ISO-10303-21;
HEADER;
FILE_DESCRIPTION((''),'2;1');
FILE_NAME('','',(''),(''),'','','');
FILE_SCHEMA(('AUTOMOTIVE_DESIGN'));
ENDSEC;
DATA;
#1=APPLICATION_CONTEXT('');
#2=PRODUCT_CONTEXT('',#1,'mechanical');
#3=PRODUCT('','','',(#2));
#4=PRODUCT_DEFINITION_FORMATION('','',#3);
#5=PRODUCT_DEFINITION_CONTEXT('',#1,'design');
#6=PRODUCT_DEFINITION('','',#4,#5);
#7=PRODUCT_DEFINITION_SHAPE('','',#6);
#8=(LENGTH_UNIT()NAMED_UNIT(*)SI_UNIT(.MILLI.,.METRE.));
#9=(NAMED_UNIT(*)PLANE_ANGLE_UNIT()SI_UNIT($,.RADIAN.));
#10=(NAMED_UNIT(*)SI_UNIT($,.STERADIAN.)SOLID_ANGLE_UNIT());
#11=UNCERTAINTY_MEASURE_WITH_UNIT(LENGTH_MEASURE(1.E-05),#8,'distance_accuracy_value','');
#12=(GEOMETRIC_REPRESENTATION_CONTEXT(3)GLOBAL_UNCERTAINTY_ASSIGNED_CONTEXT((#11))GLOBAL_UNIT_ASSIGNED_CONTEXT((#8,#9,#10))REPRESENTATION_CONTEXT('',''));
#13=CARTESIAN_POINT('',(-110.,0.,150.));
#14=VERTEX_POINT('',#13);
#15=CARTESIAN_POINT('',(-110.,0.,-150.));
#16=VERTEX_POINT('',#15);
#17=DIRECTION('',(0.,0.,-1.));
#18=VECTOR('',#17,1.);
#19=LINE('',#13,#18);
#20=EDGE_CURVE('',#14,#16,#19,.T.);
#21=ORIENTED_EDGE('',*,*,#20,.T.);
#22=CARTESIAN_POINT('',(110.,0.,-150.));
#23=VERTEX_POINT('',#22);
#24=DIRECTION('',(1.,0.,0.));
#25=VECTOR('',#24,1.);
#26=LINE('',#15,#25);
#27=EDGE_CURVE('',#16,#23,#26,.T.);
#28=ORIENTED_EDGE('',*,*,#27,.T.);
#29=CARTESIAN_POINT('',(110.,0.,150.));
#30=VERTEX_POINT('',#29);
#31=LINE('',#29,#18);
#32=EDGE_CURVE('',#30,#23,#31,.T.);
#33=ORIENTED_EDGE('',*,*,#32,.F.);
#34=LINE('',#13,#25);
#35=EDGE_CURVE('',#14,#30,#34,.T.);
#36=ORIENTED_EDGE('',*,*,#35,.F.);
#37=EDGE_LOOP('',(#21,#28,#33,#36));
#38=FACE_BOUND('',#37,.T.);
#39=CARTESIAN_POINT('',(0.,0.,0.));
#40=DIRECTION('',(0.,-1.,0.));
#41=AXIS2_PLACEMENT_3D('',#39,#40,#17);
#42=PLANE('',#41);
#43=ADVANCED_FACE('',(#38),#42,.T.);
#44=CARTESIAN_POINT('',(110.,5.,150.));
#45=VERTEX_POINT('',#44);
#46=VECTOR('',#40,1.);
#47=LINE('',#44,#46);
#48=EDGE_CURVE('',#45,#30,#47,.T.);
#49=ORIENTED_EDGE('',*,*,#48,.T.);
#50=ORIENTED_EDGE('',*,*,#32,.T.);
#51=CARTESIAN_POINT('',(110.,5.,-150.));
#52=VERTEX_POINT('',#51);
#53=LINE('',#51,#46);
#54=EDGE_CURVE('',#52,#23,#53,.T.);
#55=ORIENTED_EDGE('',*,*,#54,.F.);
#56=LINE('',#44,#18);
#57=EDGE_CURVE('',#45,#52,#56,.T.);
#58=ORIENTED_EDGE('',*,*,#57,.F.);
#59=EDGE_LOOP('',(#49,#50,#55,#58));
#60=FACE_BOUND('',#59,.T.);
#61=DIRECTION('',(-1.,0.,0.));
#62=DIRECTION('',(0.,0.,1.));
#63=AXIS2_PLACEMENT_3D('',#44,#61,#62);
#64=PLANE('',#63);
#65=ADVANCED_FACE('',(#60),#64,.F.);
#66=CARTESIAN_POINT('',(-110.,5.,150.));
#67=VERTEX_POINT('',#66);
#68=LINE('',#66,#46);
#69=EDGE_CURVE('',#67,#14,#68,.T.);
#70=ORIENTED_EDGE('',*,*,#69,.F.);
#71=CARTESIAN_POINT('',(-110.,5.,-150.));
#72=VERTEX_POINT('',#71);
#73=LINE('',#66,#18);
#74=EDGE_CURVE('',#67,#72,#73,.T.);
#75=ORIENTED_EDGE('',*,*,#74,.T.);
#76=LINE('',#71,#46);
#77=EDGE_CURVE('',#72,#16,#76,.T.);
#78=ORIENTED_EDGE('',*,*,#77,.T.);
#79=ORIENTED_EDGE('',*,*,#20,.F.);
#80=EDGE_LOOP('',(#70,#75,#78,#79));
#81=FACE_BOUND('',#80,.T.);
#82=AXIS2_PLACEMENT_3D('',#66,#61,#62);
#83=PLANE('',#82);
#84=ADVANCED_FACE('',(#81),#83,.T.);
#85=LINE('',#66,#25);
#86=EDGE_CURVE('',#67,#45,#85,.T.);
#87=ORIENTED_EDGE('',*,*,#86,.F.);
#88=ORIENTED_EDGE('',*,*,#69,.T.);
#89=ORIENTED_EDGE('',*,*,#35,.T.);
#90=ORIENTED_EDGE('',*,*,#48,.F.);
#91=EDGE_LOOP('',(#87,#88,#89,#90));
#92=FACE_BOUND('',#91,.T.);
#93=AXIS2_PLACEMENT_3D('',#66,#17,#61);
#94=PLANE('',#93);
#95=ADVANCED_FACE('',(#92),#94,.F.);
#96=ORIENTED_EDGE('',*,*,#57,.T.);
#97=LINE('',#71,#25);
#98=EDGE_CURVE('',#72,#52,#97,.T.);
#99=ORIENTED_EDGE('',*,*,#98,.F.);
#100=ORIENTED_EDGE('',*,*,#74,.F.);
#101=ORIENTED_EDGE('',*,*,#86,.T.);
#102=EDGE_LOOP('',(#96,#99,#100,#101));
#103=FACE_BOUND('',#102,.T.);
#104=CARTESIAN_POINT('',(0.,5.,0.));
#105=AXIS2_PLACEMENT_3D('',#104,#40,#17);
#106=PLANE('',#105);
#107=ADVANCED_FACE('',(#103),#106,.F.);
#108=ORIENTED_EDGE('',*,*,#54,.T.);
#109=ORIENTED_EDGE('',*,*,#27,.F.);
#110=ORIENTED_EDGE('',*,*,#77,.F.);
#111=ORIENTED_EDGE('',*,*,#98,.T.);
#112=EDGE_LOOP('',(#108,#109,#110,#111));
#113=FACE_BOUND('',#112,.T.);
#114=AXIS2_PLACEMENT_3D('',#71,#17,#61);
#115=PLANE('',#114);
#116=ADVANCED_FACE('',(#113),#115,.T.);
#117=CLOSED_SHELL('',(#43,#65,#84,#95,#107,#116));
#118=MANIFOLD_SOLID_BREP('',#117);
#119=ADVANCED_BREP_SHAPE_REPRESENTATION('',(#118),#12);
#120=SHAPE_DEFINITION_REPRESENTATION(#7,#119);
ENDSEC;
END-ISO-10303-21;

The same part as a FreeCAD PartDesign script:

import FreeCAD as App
import Part
import Sketcher
from FreeCAD import Vector


def add_polygon(sketch, points):
    """Adds a closed chain of lines whose ends are joined by coincident constraints."""
    first, n = sketch.GeometryCount, len(points)
    for a, b in zip(points, points[1:] + points[:1]):
        sketch.addGeometry(Part.LineSegment(App.Vector(*a, 0), App.Vector(*b, 0)), False)
    for i in range(n):
        sketch.addConstraint(Sketcher.Constraint("Coincident", first + i, 2, first + (i + 1) % n, 1))

doc = App.newDocument("Part")
body = doc.addObject("PartDesign::Body", "Body")

# Sketch on XZ plane
sketch1 = body.newObject("Sketcher::SketchObject", "Sketch")
sketch1.AttachmentSupport = (doc.getObject("XZ_Plane"), [""])
sketch1.MapMode = "FlatFace"
add_polygon(sketch1, [(-110, -150), (-110, 150), (110, 150), (110, -150)])  # lines 0-3
sketch1.addConstraint([
    Sketcher.Constraint("Vertical", 0),
    Sketcher.Constraint("Horizontal", 1),
    Sketcher.Constraint("Vertical", 2),
    Sketcher.Constraint("Horizontal", 3),
    Sketcher.Constraint("Symmetric", 0, 2, 2, 2, -1, 1),
    Sketcher.Constraint("DistanceX", 1, 1, 1, 2, 220.0),
    Sketcher.Constraint("DistanceY", 0, 1, 0, 2, 300.0),
])
pad1 = body.newObject("PartDesign::Pad", "Pad")
pad1.Profile = sketch1
pad1.Length = 5
pad1.Reversed = True

doc.recompute()
